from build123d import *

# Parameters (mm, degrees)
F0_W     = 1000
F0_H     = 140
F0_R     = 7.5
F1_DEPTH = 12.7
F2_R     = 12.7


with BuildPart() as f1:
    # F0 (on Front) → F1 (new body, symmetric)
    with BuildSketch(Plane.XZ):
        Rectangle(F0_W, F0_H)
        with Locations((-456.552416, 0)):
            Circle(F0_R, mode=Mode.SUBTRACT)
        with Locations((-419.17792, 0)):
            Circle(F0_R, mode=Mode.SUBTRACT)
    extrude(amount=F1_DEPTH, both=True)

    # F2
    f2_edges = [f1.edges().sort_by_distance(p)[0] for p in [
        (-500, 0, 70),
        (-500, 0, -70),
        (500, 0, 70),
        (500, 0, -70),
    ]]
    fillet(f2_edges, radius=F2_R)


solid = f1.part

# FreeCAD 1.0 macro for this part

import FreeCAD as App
import Part
import Sketcher
from FreeCAD import Vector


def edges_at(feature, points):
    """Names of the edges that pass closest to the given points."""
    edges = feature.Shape.Edges
    near = lambda p: min(range(len(edges)), key=lambda i: edges[i].distToShape(Part.Vertex(*p))[0])
    return sorted({f"Edge{near(p) + 1}" for p in points})


def add_polygon(sketch, points):
    """Adds a closed chain of lines whose ends are joined by coincident constraints."""
    first, n = sketch.GeometryCount, len(points)
    for a, b in zip(points, points[1:] + points[:1]):
        sketch.addGeometry(Part.LineSegment(App.Vector(*a, 0), App.Vector(*b, 0)), False)
    for i in range(n):
        sketch.addConstraint(Sketcher.Constraint("Coincident", first + i, 2, first + (i + 1) % n, 1))

doc = App.newDocument("Part")
body = doc.addObject("PartDesign::Body", "Body")

sketch1 = body.newObject("Sketcher::SketchObject", "Sketch")
sketch1.AttachmentSupport = (doc.getObject("XZ_Plane"), [""])
sketch1.MapMode = "FlatFace"
add_polygon(sketch1, [(-500, 70), (-500, -70), (500, -70), (500, 70)])
sketch1.addGeometry(Part.Circle(Vector(-457, 0, 0), Vector(0, 0, 1), 8), False)
sketch1.addGeometry(Part.Circle(Vector(-419, 0, 0), Vector(0, 0, 1), 8), False)
sketch1.addConstraint(Sketcher.Constraint("Vertical", 0))
sketch1.addConstraint(Sketcher.Constraint("Horizontal", 1))
sketch1.addConstraint(Sketcher.Constraint("Vertical", 2))
sketch1.addConstraint(Sketcher.Constraint("Horizontal", 3))
sketch1.addConstraint(Sketcher.Constraint("Equal", 4, 5))
sketch1.addConstraint(Sketcher.Constraint("Symmetric", 0, 2, 2, 2, -1, 1))
sketch1.addConstraint(Sketcher.Constraint("PointOnObject", 4, 3, -1))
sketch1.addConstraint(Sketcher.Constraint("PointOnObject", 5, 3, -1))
sketch1.addConstraint(Sketcher.Constraint("Diameter", 4, 15.0))
sketch1.addConstraint(Sketcher.Constraint("DistanceX", 1, 1, 1, 2, 1000.0))
sketch1.addConstraint(Sketcher.Constraint("DistanceY", 0, 2, 0, 1, 140.0))
sketch1.addConstraint(Sketcher.Constraint("DistanceX", 5, 3, -1, 1, 419.17792))
sketch1.addConstraint(Sketcher.Constraint("DistanceX", 4, 3, -1, 1, 456.552416))
pad1 = body.newObject("PartDesign::Pad", "Pad")
pad1.Profile = sketch1
pad1.Length = 25.4
pad1.Midplane = True
doc.recompute()

fillet = body.newObject("PartDesign::Fillet", "Fillet")
fillet.Base = (pad1, edges_at(pad1, [
    (-500, 0, 70),
    (-500, 0, -70),
    (500, 0, 70),
    (500, 0, -70),
]))
fillet.Radius = 12.7

doc.recompute()
